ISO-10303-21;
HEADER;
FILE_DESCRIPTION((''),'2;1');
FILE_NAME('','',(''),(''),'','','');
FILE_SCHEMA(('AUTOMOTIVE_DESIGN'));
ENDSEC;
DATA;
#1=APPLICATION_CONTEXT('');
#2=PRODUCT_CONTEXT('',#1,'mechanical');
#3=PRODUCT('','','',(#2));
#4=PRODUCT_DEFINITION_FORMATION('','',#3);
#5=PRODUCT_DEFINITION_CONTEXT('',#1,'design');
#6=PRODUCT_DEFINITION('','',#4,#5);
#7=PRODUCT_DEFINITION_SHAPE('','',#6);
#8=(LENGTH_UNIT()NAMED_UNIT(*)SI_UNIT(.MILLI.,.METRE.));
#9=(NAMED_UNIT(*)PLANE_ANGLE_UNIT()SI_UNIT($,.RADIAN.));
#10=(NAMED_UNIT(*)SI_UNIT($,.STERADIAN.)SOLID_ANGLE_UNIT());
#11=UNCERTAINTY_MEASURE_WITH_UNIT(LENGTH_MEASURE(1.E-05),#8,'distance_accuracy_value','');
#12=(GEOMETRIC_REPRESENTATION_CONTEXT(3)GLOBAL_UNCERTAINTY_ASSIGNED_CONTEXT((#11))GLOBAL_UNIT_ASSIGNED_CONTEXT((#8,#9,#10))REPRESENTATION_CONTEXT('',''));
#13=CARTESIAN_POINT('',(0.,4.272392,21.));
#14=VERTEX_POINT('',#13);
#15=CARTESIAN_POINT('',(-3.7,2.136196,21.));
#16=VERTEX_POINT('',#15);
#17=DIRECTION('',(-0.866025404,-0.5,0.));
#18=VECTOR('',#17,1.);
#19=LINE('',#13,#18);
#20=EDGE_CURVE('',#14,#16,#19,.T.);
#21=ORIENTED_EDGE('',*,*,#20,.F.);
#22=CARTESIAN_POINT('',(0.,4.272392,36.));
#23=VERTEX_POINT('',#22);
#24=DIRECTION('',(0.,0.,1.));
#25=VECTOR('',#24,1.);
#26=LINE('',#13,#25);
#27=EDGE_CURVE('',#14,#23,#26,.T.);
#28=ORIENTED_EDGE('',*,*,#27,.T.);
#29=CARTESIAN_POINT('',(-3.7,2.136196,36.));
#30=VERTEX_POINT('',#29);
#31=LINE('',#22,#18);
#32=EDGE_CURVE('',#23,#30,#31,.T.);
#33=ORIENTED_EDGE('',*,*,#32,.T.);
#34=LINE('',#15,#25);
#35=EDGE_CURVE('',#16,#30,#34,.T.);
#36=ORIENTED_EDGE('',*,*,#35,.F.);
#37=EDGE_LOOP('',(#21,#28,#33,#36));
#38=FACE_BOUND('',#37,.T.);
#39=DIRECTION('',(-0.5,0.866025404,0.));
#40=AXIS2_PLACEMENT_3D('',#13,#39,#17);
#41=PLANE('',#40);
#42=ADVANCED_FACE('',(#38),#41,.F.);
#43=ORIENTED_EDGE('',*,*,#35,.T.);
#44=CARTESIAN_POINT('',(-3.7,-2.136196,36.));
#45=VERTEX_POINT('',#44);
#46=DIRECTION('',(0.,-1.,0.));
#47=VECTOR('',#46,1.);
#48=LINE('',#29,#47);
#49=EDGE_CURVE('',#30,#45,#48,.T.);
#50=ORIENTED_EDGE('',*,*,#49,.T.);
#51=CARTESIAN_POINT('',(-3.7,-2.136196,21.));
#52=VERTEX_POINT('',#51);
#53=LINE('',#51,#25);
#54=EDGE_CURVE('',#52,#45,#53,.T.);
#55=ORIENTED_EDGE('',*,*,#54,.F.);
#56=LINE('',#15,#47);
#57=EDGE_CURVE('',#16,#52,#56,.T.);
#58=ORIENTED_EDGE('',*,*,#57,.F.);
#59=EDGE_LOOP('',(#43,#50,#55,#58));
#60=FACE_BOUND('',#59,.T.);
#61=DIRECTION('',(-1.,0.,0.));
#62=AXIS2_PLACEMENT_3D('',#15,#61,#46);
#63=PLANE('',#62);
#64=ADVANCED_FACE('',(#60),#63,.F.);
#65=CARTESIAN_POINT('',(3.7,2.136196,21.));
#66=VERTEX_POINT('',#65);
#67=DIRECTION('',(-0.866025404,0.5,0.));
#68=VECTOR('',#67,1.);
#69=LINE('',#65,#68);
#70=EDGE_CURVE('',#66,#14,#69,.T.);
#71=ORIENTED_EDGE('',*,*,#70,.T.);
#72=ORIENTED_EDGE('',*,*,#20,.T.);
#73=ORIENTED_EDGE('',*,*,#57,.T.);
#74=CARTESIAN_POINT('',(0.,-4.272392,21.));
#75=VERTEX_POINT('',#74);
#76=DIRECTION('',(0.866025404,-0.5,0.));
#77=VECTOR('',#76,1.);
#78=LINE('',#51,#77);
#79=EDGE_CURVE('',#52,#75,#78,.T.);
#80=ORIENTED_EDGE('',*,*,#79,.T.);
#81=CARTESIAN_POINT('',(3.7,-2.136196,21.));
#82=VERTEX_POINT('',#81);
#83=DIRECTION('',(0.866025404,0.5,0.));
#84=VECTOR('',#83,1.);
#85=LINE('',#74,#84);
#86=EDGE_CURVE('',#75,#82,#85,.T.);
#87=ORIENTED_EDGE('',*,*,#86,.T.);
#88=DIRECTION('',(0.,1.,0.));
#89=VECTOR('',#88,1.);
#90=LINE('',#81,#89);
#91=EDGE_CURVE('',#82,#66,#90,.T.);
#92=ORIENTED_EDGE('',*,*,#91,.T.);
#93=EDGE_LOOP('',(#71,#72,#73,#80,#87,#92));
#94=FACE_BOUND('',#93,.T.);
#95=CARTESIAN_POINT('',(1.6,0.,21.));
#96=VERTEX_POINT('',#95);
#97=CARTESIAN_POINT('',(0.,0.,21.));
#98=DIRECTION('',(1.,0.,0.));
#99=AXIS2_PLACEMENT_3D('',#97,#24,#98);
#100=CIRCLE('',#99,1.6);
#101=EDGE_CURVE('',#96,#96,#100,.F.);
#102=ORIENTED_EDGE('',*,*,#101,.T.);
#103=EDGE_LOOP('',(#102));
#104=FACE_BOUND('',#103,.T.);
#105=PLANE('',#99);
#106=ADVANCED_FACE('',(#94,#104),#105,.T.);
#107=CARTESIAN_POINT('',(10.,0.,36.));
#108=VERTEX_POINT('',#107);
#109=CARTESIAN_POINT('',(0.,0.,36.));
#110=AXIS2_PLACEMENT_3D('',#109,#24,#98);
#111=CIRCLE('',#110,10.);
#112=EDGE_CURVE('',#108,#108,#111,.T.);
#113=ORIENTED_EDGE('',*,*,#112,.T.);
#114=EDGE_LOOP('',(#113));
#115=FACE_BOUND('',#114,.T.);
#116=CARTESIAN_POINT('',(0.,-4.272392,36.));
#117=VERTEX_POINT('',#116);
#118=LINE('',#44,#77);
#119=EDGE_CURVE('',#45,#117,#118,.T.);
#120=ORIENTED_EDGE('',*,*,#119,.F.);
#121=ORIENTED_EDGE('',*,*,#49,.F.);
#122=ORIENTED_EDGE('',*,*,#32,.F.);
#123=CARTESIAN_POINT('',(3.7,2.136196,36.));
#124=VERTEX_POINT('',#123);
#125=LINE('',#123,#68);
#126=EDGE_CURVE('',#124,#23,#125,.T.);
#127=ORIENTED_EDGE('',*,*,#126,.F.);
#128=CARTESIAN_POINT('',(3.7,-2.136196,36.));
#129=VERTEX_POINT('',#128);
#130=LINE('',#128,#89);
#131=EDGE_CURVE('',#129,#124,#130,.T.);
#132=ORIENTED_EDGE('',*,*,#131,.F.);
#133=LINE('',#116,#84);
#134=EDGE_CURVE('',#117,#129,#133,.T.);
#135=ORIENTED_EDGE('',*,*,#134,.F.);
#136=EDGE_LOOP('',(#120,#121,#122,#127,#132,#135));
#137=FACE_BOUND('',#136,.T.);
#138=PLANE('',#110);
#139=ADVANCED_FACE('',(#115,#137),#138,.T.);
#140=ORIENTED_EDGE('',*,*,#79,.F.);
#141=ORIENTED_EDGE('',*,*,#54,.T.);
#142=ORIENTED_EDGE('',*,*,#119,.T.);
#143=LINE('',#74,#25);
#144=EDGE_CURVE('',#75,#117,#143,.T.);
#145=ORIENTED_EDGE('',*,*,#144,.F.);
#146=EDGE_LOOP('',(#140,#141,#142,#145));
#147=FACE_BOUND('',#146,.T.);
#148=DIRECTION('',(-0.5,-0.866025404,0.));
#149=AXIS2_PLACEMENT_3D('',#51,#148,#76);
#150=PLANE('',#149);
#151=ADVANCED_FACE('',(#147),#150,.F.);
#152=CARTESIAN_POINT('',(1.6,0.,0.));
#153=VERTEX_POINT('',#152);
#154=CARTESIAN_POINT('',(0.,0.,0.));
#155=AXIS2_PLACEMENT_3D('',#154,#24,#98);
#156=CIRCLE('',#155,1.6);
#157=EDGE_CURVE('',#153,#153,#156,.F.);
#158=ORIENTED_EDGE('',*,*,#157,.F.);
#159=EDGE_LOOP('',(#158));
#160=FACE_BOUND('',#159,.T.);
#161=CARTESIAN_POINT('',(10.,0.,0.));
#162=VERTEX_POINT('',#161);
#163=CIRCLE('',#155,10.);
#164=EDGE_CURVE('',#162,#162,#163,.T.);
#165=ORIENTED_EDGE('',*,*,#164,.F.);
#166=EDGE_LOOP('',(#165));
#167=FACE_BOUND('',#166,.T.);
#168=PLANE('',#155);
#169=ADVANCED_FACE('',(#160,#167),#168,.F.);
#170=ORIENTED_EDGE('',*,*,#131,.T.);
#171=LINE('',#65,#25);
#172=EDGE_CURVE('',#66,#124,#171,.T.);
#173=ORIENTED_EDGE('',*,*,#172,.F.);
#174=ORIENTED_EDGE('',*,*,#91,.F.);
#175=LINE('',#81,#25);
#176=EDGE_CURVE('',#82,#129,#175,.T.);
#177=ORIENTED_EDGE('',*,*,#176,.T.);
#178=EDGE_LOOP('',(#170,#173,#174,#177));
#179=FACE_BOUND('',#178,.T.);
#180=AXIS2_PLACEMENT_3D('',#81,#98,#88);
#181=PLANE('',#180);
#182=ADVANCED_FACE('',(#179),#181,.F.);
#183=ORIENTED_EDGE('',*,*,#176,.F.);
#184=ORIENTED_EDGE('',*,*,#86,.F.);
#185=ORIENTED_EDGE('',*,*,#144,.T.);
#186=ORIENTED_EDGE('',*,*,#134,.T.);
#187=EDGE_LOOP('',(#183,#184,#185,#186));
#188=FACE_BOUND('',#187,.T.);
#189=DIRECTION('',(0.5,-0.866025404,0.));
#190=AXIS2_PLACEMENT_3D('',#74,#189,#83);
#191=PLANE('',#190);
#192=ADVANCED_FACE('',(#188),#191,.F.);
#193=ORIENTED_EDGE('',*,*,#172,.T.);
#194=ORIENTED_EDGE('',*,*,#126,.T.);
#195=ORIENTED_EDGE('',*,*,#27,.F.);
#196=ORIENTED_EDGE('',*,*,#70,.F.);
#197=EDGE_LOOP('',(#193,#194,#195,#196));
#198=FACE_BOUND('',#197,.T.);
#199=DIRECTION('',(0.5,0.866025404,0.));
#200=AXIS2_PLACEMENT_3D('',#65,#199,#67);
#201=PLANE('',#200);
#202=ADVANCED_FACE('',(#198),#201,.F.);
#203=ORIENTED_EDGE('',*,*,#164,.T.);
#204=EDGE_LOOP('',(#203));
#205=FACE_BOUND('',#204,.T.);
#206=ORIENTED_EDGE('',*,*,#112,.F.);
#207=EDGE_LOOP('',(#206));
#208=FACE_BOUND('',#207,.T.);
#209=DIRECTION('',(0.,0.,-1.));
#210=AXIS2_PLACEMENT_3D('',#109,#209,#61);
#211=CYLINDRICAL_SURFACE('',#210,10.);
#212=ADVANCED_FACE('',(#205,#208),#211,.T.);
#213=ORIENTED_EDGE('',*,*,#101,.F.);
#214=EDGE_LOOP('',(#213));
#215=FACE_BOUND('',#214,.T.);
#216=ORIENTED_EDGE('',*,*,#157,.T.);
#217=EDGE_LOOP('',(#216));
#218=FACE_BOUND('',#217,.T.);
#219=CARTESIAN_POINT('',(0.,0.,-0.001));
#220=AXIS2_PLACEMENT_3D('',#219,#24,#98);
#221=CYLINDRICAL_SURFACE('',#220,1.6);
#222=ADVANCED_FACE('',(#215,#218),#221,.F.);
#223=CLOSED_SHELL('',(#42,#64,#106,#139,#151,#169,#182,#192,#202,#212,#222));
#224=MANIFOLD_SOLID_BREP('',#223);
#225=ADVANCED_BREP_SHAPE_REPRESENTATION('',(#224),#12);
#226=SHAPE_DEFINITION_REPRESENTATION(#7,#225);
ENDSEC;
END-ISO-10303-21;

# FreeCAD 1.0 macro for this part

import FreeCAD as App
import Part
import Sketcher
Q = App.Units.Quantity

doc = App.newDocument("Part")
params = doc.addObject("Spreadsheet::Sheet", "Params")
for row, (alias, value) in enumerate([
    ("sketch1_diameter", "20 mm"),
    ("pad1_length", "36 mm"),
    ("sketch2_diameter", "3.2 mm"),
    ("pocket2_length", "15 mm"),
], start=1):
    params.set(f"A{row}", alias)
    params.set(f"B{row}", "=" + value)
    params.setAlias(f"B{row}", alias)

body = doc.addObject("PartDesign::Body", "Body")

sketch1 = body.newObject("Sketcher::SketchObject", "Sketch")
sketch1.AttachmentSupport = (doc.getObject("XY_Plane"), [""])
sketch1.MapMode = "FlatFace"
sketch1.addGeometry(Part.Circle(App.Vector(0, 0, 0), App.Vector(0, 0, 1), 10), False)
sketch1.addConstraint(Sketcher.Constraint("Coincident", 0, 3, -1, 1))
sketch1.addConstraint(Sketcher.Constraint("Diameter", 0, Q("20 mm")))
sketch1.setExpression("Constraints[1]", "Params.sketch1_diameter")
pad1 = body.newObject("PartDesign::Pad", "Pad")
pad1.Profile = sketch1
pad1.setExpression("Length", "Params.pad1_length")

sketch2 = body.newObject("Sketcher::SketchObject", "Sketch001")
sketch2.AttachmentSupport = (doc.getObject("XY_Plane"), [""])
sketch2.MapMode = "FlatFace"
sketch2.AttachmentOffset = App.Placement(App.Vector(0, 0, 36), App.Rotation())
sketch2.addGeometry(Part.Circle(App.Vector(0, 0, 0), App.Vector(0, 0, 1), 1.6), False)
sketch2.addConstraint(Sketcher.Constraint("Coincident", 0, 3, -1, 1))
sketch2.addConstraint(Sketcher.Constraint("Diameter", 0, Q("3.2 mm")))
sketch2.setExpression("Constraints[1]", "Params.sketch2_diameter")
pocket1 = body.newObject("PartDesign::Pocket", "Pocket")
pocket1.Profile = sketch2
pocket1.Type = "UpToFirst"

sketch3 = body.newObject("Sketcher::SketchObject", "Sketch002")
sketch3.AttachmentSupport = (doc.getObject("XY_Plane"), [""])
sketch3.MapMode = "FlatFace"
sketch3.AttachmentOffset = App.Placement(App.Vector(0, 0, 36), App.Rotation())
sketch3.addGeometry(Part.LineSegment(App.Vector(0, 4.3, 0), App.Vector(-3.7, 2.1, 0)), False)
sketch3.addGeometry(Part.LineSegment(App.Vector(-3.7, 2.1, 0), App.Vector(-3.7, -2.1, 0)), False)
sketch3.addGeometry(Part.LineSegment(App.Vector(-3.7, -2.1, 0), App.Vector(0, -4.3, 0)), False)
sketch3.addGeometry(Part.LineSegment(App.Vector(0, -4.3, 0), App.Vector(3.7, -2.1, 0)), False)
sketch3.addGeometry(Part.LineSegment(App.Vector(3.7, -2.1, 0), App.Vector(3.7, 2.1, 0)), False)
sketch3.addGeometry(Part.LineSegment(App.Vector(3.7, 2.1, 0), App.Vector(0, 4.3, 0)), False)
sketch3.addConstraint(Sketcher.Constraint("Coincident", 0, 2, 1, 1))
sketch3.addConstraint(Sketcher.Constraint("Coincident", 1, 2, 2, 1))
sketch3.addConstraint(Sketcher.Constraint("Coincident", 2, 2, 3, 1))
sketch3.addConstraint(Sketcher.Constraint("Coincident", 3, 2, 4, 1))
sketch3.addConstraint(Sketcher.Constraint("Coincident", 4, 2, 5, 1))
sketch3.addConstraint(Sketcher.Constraint("Coincident", 5, 2, 0, 1))
sketch3.addConstraint(Sketcher.Constraint("Vertical", 1))
sketch3.addConstraint(Sketcher.Constraint("Vertical", 4))
sketch3.addConstraint(Sketcher.Constraint("Symmetric", 0, 2, 3, 2, -1, 1))
sketch3.addConstraint(Sketcher.Constraint("Symmetric", 2, 2, 5, 2, -1, 1))
sketch3.addConstraint(Sketcher.Constraint("PointOnObject", 2, 2, -2))
sketch3.addConstraint(Sketcher.Constraint("Parallel", 2, 5))
sketch3.addConstraint(Sketcher.Constraint("Horizontal", 1, 2, 3, 2))
sketch3.addConstraint(Sketcher.Constraint("Angle", 0, Q("-150 deg")))
sketch3.addConstraint(Sketcher.Constraint("DistanceX", 0, 2, -1, 1, Q("3.7 mm")))
sketch3.addConstraint(Sketcher.Constraint("DistanceY", 1, 2, 1, 1, Q("4.272392 mm")))
pocket2 = body.newObject("PartDesign::Pocket", "Pocket001")
pocket2.Profile = sketch3
pocket2.setExpression("Length", "Params.pocket2_length")

doc.recompute()
